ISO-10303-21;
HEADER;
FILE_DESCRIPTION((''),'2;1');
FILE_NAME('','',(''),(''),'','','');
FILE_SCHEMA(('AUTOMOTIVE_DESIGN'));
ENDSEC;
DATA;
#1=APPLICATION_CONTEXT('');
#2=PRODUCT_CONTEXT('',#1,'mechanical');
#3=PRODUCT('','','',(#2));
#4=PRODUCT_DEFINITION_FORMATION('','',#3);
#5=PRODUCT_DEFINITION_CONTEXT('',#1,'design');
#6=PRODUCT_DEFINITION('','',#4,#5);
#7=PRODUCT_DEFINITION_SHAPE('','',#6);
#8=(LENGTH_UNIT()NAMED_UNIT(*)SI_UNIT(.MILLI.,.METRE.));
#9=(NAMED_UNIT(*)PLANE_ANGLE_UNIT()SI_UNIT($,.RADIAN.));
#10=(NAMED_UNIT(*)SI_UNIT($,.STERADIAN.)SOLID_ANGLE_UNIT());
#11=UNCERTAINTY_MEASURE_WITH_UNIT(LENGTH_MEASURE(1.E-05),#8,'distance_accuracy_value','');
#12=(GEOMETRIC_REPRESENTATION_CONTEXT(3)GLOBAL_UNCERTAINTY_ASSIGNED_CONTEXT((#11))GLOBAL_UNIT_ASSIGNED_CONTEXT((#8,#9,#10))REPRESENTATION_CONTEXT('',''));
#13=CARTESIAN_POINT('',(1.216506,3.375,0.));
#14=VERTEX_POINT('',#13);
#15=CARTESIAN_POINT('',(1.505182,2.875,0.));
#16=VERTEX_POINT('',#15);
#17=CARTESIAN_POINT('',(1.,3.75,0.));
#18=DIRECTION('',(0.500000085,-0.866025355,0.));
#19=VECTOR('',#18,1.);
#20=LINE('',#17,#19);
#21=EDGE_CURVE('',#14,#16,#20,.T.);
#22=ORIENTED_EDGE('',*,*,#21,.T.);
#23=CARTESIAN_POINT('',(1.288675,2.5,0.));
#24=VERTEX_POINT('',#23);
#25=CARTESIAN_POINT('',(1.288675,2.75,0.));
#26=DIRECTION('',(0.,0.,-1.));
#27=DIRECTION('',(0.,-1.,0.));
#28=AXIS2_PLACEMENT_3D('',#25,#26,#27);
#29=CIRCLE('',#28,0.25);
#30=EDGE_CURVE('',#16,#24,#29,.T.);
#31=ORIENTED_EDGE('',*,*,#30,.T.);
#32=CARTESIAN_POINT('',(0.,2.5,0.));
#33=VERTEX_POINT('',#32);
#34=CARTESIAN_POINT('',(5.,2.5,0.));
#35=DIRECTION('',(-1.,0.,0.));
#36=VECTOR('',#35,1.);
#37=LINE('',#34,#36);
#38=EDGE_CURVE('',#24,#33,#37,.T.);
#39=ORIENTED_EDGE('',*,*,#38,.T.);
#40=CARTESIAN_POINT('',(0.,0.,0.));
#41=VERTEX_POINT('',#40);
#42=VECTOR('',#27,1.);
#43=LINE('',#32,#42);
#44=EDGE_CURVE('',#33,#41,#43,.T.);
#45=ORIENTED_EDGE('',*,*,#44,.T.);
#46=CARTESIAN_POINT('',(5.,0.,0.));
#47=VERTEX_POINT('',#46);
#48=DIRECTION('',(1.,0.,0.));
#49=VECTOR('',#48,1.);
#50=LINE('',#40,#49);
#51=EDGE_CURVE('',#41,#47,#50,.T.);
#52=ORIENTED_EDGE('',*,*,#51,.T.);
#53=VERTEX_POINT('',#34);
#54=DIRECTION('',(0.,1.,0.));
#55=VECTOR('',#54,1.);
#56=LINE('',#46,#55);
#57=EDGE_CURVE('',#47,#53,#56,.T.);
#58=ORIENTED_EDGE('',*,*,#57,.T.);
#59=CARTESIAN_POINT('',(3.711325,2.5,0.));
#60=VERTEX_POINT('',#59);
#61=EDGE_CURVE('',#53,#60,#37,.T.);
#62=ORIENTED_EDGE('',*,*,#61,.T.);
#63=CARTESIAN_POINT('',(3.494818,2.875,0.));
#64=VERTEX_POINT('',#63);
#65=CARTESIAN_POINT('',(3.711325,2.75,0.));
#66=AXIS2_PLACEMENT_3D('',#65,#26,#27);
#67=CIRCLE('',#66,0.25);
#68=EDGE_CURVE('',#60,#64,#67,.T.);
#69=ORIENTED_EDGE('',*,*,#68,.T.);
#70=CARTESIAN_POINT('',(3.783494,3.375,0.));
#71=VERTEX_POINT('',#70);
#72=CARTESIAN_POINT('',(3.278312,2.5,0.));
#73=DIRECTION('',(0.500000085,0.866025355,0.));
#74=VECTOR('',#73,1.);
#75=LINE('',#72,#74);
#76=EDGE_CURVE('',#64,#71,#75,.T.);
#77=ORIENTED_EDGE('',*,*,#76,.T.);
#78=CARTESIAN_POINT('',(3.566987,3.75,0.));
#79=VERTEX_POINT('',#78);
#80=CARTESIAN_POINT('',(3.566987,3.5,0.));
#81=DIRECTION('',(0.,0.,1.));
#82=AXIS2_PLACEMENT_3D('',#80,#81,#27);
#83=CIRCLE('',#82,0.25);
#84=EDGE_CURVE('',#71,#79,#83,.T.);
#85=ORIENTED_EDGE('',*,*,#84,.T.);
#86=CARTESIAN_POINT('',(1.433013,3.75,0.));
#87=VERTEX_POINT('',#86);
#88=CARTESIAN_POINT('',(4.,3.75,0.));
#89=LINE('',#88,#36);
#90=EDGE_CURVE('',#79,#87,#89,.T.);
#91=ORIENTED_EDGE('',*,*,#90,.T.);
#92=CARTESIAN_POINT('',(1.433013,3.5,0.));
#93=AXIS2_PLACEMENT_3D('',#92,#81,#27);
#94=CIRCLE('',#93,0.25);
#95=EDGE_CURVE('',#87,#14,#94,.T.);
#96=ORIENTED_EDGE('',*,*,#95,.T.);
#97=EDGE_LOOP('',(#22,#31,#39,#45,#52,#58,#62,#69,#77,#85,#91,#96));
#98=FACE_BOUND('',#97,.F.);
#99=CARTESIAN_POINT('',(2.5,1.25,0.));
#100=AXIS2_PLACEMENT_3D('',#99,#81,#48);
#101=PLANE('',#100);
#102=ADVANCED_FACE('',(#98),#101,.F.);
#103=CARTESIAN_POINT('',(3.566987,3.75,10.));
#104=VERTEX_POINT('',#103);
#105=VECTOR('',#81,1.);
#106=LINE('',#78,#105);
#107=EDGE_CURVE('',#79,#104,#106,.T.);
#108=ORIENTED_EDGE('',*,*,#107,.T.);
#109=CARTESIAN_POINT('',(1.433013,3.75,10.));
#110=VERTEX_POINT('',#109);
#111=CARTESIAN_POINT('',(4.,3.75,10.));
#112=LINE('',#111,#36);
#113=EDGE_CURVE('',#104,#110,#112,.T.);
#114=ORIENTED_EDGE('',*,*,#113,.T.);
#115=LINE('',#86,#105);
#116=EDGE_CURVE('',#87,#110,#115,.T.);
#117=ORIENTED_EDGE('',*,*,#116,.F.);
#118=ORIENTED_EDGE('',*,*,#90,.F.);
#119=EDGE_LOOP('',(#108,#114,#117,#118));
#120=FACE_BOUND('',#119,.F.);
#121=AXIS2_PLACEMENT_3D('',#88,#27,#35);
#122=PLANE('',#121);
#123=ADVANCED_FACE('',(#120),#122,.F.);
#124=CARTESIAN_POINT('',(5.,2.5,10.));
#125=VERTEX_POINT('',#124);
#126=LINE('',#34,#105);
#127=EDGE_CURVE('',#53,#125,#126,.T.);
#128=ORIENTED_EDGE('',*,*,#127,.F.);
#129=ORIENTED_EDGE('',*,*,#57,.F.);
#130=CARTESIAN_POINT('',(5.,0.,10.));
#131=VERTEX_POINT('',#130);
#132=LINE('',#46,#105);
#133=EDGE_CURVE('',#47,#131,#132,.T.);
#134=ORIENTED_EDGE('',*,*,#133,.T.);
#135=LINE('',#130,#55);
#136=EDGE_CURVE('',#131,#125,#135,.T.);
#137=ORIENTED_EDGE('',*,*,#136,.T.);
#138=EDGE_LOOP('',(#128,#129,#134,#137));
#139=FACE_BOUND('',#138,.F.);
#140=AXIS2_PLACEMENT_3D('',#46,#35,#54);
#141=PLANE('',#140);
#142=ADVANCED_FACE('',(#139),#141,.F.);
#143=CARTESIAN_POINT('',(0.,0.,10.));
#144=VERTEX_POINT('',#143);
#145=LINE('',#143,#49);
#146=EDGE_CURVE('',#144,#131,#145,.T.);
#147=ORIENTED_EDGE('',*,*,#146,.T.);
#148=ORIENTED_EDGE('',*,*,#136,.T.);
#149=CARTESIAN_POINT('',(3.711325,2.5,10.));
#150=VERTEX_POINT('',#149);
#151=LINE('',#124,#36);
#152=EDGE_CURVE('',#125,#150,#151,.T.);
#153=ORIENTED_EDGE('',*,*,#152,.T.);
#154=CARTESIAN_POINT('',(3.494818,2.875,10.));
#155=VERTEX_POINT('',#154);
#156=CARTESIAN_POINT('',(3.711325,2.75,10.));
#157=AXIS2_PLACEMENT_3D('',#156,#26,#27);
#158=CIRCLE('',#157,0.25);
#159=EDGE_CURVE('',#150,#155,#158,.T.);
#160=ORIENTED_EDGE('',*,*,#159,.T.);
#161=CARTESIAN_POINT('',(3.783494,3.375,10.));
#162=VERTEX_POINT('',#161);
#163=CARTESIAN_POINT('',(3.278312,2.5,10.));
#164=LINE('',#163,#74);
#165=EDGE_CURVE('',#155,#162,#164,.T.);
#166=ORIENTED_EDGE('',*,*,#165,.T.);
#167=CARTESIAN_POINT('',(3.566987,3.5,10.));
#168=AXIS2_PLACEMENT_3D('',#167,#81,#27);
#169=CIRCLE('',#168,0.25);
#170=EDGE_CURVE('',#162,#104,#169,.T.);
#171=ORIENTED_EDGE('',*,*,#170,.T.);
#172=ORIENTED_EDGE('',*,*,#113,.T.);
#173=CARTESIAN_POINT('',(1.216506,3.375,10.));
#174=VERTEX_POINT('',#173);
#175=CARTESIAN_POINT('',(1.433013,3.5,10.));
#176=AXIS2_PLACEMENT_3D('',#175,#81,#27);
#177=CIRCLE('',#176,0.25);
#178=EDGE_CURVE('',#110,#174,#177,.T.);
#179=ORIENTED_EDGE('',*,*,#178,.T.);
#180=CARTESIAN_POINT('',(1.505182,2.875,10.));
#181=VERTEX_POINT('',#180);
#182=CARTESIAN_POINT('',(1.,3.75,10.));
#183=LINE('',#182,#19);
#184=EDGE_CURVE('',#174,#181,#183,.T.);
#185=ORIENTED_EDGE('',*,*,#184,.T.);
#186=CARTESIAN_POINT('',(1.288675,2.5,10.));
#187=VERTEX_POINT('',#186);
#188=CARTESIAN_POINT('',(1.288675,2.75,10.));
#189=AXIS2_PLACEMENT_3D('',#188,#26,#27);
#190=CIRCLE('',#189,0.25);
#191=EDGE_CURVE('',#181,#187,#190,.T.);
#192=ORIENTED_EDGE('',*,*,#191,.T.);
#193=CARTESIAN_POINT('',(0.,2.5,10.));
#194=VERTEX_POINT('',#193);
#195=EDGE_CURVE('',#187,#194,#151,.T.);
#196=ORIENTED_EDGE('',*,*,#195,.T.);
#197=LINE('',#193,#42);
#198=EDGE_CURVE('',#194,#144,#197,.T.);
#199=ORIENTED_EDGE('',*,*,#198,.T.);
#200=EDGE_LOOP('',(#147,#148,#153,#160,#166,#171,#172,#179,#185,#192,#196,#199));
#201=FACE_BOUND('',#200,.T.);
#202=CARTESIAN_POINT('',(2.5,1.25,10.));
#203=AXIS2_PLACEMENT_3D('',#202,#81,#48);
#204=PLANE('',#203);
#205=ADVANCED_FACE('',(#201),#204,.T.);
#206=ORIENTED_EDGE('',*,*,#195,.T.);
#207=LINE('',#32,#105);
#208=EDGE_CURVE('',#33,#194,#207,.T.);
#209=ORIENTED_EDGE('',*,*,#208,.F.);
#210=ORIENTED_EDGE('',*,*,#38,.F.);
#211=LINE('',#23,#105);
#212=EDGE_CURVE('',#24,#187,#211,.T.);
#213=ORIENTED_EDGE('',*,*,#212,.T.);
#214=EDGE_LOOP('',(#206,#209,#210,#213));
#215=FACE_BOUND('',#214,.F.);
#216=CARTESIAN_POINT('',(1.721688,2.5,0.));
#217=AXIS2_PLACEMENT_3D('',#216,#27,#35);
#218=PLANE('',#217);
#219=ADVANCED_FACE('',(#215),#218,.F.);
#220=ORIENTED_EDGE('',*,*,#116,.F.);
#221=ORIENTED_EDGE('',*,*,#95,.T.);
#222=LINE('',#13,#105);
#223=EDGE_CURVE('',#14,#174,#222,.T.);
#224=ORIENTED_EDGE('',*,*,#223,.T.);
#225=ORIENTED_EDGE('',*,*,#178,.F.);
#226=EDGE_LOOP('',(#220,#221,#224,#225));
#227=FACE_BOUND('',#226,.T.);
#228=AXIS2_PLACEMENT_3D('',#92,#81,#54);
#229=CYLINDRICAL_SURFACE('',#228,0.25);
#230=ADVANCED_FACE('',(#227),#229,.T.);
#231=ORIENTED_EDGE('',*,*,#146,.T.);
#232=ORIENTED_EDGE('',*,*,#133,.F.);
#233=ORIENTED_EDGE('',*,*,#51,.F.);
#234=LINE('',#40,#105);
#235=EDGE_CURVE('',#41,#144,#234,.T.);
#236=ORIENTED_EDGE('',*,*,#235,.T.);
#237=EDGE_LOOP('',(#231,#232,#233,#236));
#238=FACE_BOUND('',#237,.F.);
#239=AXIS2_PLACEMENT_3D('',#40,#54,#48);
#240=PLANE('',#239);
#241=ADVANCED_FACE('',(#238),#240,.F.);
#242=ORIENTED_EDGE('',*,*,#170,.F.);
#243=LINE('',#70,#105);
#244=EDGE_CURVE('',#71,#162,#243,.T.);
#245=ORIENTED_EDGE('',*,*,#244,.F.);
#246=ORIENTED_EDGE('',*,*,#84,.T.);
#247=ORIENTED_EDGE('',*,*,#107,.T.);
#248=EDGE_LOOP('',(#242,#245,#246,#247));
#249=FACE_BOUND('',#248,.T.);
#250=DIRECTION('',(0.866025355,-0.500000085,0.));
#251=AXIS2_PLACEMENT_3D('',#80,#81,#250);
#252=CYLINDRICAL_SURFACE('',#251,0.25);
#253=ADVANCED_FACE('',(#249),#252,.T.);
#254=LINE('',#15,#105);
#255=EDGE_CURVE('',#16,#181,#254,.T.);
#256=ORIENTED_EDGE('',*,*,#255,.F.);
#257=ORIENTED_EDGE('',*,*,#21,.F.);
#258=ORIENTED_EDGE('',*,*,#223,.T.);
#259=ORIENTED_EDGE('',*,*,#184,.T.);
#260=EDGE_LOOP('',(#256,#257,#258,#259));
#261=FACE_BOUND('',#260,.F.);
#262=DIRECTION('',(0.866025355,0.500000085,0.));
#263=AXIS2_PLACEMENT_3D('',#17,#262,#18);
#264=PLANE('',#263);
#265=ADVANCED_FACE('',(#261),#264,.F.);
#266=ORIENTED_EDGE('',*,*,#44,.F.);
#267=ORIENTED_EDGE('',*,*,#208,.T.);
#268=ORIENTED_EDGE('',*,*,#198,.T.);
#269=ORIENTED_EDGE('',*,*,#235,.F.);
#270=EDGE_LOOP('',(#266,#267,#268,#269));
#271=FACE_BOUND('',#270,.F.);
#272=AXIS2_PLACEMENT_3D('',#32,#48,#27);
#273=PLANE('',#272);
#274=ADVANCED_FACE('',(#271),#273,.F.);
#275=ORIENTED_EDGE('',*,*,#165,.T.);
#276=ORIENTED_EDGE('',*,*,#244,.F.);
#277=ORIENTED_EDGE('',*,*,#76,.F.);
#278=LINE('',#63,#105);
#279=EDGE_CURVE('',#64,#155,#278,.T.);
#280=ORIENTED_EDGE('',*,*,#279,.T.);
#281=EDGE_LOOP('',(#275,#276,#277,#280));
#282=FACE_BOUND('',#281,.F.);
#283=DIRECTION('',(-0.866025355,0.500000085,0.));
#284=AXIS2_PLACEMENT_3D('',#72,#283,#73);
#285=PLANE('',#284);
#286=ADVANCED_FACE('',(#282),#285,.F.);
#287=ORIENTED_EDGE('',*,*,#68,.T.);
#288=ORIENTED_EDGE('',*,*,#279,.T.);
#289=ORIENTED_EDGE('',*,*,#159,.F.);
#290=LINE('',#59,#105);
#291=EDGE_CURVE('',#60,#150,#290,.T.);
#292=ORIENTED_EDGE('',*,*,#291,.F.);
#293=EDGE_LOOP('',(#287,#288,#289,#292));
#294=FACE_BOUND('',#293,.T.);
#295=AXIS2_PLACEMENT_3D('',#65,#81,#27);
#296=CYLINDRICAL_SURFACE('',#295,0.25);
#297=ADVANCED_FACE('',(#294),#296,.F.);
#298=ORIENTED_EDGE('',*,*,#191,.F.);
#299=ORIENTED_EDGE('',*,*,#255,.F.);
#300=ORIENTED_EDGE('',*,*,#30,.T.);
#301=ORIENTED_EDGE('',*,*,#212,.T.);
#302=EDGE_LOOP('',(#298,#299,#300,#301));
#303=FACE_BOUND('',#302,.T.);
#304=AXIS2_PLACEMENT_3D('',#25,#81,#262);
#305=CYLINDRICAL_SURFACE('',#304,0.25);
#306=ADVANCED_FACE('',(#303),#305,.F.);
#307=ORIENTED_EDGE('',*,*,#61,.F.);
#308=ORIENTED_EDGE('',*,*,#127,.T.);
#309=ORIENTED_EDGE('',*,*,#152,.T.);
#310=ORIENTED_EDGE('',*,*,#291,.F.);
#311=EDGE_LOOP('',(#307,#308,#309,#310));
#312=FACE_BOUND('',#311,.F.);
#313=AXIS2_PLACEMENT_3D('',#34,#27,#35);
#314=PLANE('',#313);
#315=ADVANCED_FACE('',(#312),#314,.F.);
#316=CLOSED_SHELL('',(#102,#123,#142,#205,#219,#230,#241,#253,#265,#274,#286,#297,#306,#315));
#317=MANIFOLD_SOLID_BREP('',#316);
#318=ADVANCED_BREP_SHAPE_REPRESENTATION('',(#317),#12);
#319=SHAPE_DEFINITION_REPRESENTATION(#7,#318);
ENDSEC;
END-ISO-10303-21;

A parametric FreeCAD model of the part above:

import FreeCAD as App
import Part
import Sketcher
Q = App.Units.Quantity


def edges_at(feature, points):
    """Names of the edges that pass closest to the given points."""
    edges = feature.Shape.Edges
    near = lambda p: min(range(len(edges)), key=lambda i: edges[i].distToShape(Part.Vertex(*p))[0])
    return sorted({f"Edge{near(p) + 1}" for p in points})

doc = App.newDocument("Part")
body = doc.addObject("PartDesign::Body", "Body")

sketch1 = body.newObject("Sketcher::SketchObject", "Sketch")
sketch1.AttachmentSupport = (doc.getObject("XY_Plane"), [""])
sketch1.MapMode = "FlatFace"
sketch1.addGeometry([
    Part.LineSegment(App.Vector(0, 2.5, 0), App.Vector(0, 0, 0)),
    Part.LineSegment(App.Vector(0, 0, 0), App.Vector(5, 0, 0)),
    Part.LineSegment(App.Vector(5, 0, 0), App.Vector(5, 2.5, 0)),
    Part.LineSegment(App.Vector(5, 2.5, 0), App.Vector(3.3, 2.5, 0)),
    Part.LineSegment(App.Vector(3.3, 2.5, 0), App.Vector(4, 3.8, 0)),
    Part.LineSegment(App.Vector(4, 3.8, 0), App.Vector(1, 3.8, 0)),
    Part.LineSegment(App.Vector(1, 3.8, 0), App.Vector(1.7, 2.5, 0)),
    Part.LineSegment(App.Vector(1.7, 2.5, 0), App.Vector(0, 2.5, 0)),
], False)
sketch1.addConstraint([
    Sketcher.Constraint("Coincident", 0, 2, 1, 1),
    Sketcher.Constraint("Coincident", 1, 2, 2, 1),
    Sketcher.Constraint("Coincident", 2, 2, 3, 1),
    Sketcher.Constraint("Coincident", 3, 2, 4, 1),
    Sketcher.Constraint("Coincident", 4, 2, 5, 1),
    Sketcher.Constraint("Coincident", 5, 2, 6, 1),
    Sketcher.Constraint("Coincident", 6, 2, 7, 1),
    Sketcher.Constraint("Coincident", 7, 2, 0, 1),
    Sketcher.Constraint("Vertical", 0),
    Sketcher.Constraint("Horizontal", 1),
    Sketcher.Constraint("Vertical", 2),
    Sketcher.Constraint("Horizontal", 3),
    Sketcher.Constraint("Horizontal", 5),
    Sketcher.Constraint("Horizontal", 7),
    Sketcher.Constraint("Coincident", 0, 2, -1, 1),
    Sketcher.Constraint("Horizontal", 3, 2, 6, 2),
    Sketcher.Constraint("Equal", 3, 7),
    Sketcher.Constraint("Equal", 4, 6),
    Sketcher.Constraint("DistanceX", 1, 1, 1, 2, 5.0),
    Sketcher.Constraint("DistanceX", 5, 2, 5, 1, 3.0),
    Sketcher.Constraint("Angle", 4, Q("59.999994 deg")),
    Sketcher.Constraint("DistanceY", 0, 2, 0, 1, 2.5),
    Sketcher.Constraint("DistanceY", -1, 1, 4, 2, 3.75),
])
pad1 = body.newObject("PartDesign::Pad", "Pad")
pad1.Profile = sketch1
pad1.Length = 10
doc.recompute()

fillet = body.newObject("PartDesign::Fillet", "Fillet")
fillet.Base = (pad1, edges_at(pad1, [
    (1.722, 2.5, 5),
    (3.278, 2.5, 5),
    (4, 3.75, 5),
    (1, 3.75, 5),
]))
fillet.Radius = 0.25

doc.recompute()
